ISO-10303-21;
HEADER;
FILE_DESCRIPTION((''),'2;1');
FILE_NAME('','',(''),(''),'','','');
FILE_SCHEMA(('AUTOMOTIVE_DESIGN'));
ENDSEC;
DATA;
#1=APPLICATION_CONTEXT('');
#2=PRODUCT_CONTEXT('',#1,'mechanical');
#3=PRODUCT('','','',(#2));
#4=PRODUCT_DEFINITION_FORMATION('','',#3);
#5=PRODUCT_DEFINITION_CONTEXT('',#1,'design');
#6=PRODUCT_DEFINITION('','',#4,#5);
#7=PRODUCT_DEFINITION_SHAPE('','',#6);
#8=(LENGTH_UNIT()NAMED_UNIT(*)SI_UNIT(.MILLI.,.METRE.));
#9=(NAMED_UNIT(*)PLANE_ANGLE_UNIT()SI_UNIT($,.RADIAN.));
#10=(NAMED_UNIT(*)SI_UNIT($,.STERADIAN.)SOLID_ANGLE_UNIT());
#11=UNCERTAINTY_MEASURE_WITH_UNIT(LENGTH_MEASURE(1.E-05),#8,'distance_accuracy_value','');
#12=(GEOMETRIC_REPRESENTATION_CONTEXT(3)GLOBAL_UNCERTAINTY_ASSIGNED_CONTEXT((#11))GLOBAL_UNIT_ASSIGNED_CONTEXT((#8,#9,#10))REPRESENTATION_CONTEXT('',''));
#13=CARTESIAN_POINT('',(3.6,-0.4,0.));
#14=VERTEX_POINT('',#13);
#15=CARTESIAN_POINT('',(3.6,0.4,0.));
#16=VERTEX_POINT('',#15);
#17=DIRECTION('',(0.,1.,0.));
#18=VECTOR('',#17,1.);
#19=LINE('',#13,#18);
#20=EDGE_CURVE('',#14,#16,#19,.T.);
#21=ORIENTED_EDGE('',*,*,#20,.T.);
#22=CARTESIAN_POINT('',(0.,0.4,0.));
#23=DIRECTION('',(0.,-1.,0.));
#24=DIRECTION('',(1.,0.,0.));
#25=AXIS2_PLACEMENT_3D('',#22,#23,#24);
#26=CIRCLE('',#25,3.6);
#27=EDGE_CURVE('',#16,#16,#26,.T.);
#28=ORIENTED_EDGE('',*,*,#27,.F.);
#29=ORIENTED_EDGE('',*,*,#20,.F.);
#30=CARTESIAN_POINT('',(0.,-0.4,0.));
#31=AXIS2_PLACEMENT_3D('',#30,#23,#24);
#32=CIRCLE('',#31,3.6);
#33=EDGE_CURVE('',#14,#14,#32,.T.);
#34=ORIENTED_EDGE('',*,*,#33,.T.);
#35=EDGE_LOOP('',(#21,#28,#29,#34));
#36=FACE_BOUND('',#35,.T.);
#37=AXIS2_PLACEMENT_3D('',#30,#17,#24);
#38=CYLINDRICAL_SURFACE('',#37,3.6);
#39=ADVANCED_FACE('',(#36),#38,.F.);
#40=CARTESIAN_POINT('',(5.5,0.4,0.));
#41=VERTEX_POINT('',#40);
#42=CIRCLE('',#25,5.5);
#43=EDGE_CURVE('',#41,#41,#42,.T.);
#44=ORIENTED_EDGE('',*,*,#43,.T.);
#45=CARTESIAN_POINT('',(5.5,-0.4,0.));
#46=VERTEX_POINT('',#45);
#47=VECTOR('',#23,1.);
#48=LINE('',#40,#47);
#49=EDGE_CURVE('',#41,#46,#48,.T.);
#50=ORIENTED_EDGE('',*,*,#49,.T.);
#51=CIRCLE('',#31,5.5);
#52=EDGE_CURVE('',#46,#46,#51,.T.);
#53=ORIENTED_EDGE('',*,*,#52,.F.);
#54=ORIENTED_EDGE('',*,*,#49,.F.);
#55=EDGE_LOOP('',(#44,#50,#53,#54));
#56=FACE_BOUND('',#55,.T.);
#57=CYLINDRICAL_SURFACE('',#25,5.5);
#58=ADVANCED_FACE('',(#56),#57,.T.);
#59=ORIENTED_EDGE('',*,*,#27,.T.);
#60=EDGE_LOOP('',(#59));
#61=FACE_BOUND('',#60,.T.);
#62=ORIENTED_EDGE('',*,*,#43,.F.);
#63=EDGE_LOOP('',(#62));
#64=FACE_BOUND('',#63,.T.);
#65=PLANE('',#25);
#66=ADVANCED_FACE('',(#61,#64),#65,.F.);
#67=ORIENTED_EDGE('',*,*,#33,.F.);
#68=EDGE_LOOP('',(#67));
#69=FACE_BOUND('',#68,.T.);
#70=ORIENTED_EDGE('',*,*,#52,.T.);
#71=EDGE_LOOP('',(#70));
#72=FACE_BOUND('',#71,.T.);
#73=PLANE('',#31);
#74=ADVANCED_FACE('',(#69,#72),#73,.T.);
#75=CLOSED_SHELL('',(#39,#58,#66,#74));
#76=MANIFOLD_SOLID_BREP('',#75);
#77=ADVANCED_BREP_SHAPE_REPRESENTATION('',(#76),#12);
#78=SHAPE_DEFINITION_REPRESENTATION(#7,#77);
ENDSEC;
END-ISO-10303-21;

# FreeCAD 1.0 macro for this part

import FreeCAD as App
import Part
import Sketcher


def add_polygon(sketch, points):
    """Adds a closed chain of lines whose ends are joined by coincident constraints."""
    first, n = sketch.GeometryCount, len(points)
    for a, b in zip(points, points[1:] + points[:1]):
        sketch.addGeometry(Part.LineSegment(App.Vector(*a, 0), App.Vector(*b, 0)), False)
    for i in range(n):
        sketch.addConstraint(Sketcher.Constraint("Coincident", first + i, 2, first + (i + 1) % n, 1))

doc = App.newDocument("Part")
params = doc.addObject("Spreadsheet::Sheet", "Params")
for row, (alias, value) in enumerate([
    ("sketch1_height", "0.8 mm"),
    ("sketch1_width", "1.9 mm"),
    ("revolution_angle", "360 deg"),
], start=1):
    params.set(f"A{row}", alias)
    params.set(f"B{row}", "=" + value)
    params.setAlias(f"B{row}", alias)

body = doc.addObject("PartDesign::Body", "Body")

sketch1 = doc.addObject("Sketcher::SketchObject", "Sketch")
body.addObject(sketch1)
sketch1.AttachmentSupport = (doc.XY_Plane, [""])
sketch1.MapMode = "FlatFace"
add_polygon(sketch1, [(5.5, 0.4), (3.6, 0.4), (3.6, -0.4), (5.5, -0.4)])
sketch1.addConstraint([
    Sketcher.Constraint("Horizontal", 0),
    Sketcher.Constraint("Vertical", 1),
    Sketcher.Constraint("Horizontal", 2),
    Sketcher.Constraint("Vertical", 3),
    Sketcher.Constraint("DistanceY", 1, 2, 1, 1, 0.8),
    Sketcher.Constraint("DistanceX", 0, 2, 0, 1, 1.9),
    Sketcher.Constraint("DistanceX", -1, 1, 0, 2, 3.6),
    Sketcher.Constraint("DistanceY", -1, 1, 0, 2, 0.4),
])
sketch1.setExpression("Constraints[8]", "Params.sketch1_height")
sketch1.setExpression("Constraints[9]", "Params.sketch1_width")
revolution = doc.addObject("PartDesign::Revolution", "Revolution")
body.addObject(revolution)
revolution.Profile = sketch1
revolution.ReferenceAxis = (sketch1, ["V_Axis"])
revolution.setExpression("Angle", "Params.revolution_angle")

doc.recompute()
